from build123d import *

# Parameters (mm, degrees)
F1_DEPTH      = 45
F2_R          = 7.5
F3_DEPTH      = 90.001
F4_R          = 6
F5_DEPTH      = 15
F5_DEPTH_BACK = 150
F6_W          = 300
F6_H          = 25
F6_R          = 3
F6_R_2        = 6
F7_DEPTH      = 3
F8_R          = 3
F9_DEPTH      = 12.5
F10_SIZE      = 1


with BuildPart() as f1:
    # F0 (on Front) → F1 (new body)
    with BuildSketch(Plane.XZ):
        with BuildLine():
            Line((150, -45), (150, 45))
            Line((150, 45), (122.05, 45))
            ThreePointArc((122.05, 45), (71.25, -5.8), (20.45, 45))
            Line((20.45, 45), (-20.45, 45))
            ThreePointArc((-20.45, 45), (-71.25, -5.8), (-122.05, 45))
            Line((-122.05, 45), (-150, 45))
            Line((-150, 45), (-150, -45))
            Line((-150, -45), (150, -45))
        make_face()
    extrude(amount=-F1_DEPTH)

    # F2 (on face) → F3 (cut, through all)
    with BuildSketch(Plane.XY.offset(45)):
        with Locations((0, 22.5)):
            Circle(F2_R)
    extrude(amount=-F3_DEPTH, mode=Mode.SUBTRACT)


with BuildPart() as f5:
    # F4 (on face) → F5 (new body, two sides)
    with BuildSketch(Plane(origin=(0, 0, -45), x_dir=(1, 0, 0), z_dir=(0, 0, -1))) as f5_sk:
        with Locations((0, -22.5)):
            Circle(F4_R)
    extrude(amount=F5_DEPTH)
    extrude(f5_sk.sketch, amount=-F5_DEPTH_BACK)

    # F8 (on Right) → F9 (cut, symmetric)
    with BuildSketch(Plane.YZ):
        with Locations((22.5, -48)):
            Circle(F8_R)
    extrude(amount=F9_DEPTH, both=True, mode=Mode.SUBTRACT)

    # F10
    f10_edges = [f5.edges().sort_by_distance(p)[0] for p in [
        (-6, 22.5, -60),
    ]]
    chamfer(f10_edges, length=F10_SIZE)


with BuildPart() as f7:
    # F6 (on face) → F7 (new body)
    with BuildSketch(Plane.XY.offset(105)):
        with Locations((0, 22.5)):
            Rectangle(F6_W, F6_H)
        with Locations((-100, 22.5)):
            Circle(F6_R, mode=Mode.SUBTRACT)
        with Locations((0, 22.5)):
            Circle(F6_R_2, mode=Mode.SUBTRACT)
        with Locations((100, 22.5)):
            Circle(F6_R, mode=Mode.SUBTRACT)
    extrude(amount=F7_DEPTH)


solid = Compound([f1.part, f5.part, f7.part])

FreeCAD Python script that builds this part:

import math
import FreeCAD as App
import Part
import Sketcher
from FreeCAD import Vector


def edges_at(feature, points):
    """Names of the edges that pass closest to the given points."""
    edges = feature.Shape.Edges
    near = lambda p: min(range(len(edges)), key=lambda i: edges[i].distToShape(Part.Vertex(*p))[0])
    return sorted({f"Edge{near(p) + 1}" for p in points})

doc = App.newDocument("Part")
body = doc.addObject("PartDesign::Body", "Body")

sketch1 = doc.addObject("Sketcher::SketchObject", "Sketch")
body.addObject(sketch1)
sketch1.AttachmentSupport = (doc.XZ_Plane, [""])
sketch1.MapMode = "FlatFace"
sketch1.addGeometry([
    Part.LineSegment(Vector(150, -45, 0), Vector(150, 45, 0)),
    Part.LineSegment(Vector(150, 45, 0), Vector(122, 45, 0)),
    Part.ArcOfCircle(Part.Circle(Vector(71, 45, 0), Vector(0, 0, 1), 51), math.radians(180), math.radians(360)),
    Part.LineSegment(Vector(20, 45, 0), Vector(-20, 45, 0)),
    Part.ArcOfCircle(Part.Circle(Vector(-71, 45, 0), Vector(0, 0, 1), 51), math.radians(180), math.radians(360)),
    Part.LineSegment(Vector(-122, 45, 0), Vector(-150, 45, 0)),
    Part.LineSegment(Vector(-150, 45, 0), Vector(-150, -45, 0)),
    Part.LineSegment(Vector(-150, -45, 0), Vector(150, -45, 0)),
], False)
sketch1.addConstraint([
    Sketcher.Constraint("Coincident", 0, 2, 1, 1),
    Sketcher.Constraint("Coincident", 1, 2, 2, 2),
    Sketcher.Constraint("Coincident", 2, 1, 3, 1),
    Sketcher.Constraint("Coincident", 3, 2, 4, 2),
    Sketcher.Constraint("Coincident", 4, 1, 5, 1),
    Sketcher.Constraint("Coincident", 5, 2, 6, 1),
    Sketcher.Constraint("Coincident", 6, 2, 7, 1),
    Sketcher.Constraint("Coincident", 7, 2, 0, 1),
    Sketcher.Constraint("Vertical", 0),
    Sketcher.Constraint("Horizontal", 1),
    Sketcher.Constraint("Horizontal", 3),
    Sketcher.Constraint("Horizontal", 5),
    Sketcher.Constraint("Vertical", 6),
    Sketcher.Constraint("Horizontal", 7),
    Sketcher.Constraint("Equal", 2, 4),
    Sketcher.Constraint("Symmetric", 0, 2, 6, 2, -1, 1),
    Sketcher.Constraint("Symmetric", 2, 3, 4, 3, -2),
    Sketcher.Constraint("Horizontal", 4, 3, 0, 2),
    Sketcher.Constraint("Horizontal", 1, 2, 2, 1),
    Sketcher.Constraint("Horizontal", 3, 2, 4, 1),
    Sketcher.Constraint("Radius", 2, 50.8),
    Sketcher.Constraint("DistanceX", 7, 1, 7, 2, 300.0),
    Sketcher.Constraint("DistanceY", 0, 1, 0, 2, 90.0),
    Sketcher.Constraint("DistanceX", 3, 2, 3, 1, 40.9),
])
pad1 = doc.addObject("PartDesign::Pad", "Pad")
body.addObject(pad1)
pad1.Profile = sketch1
pad1.Length = 45
pad1.Reversed = True

sketch2 = doc.addObject("Sketcher::SketchObject", "Sketch001")
body.addObject(sketch2)
sketch2.AttachmentSupport = (doc.XY_Plane, [""])
sketch2.MapMode = "FlatFace"
sketch2.AttachmentOffset = App.Placement(Vector(0, 0, 45), App.Rotation())
sketch2.addGeometry(Part.Circle(Vector(0, 22, 0), Vector(0, 0, 1), 8), False)
sketch2.addConstraint([
    Sketcher.Constraint("PointOnObject", 0, 3, -2),
    Sketcher.Constraint("Diameter", 0, 15.0),
    Sketcher.Constraint("DistanceY", -1, 1, 0, 3, 22.5),
])
pocket1 = doc.addObject("PartDesign::Pocket", "Pocket")
body.addObject(pocket1)
pocket1.Profile = sketch2
pocket1.Type = "ThroughAll"
body2 = doc.addObject("PartDesign::Body", "Body001")

sketch3 = doc.addObject("Sketcher::SketchObject", "Sketch002")
body2.addObject(sketch3)
sketch3.AttachmentSupport = (doc.getObject("XY_Plane001"), [""])
sketch3.MapMode = "FlatFace"
sketch3.AttachmentOffset = App.Placement(Vector(0, 0, -45), App.Rotation())
sketch3.addGeometry(Part.Circle(Vector(0, 22, 0), Vector(0, 0, 1), 6), False)
sketch3.addConstraint([
    Sketcher.Constraint("PointOnObject", 0, 3, -2),
    Sketcher.Constraint("Diameter", 0, 12.0),
    Sketcher.Constraint("DistanceY", -1, 1, 0, 3, 22.5),
])
pad2 = doc.addObject("PartDesign::Pad", "Pad001")
body2.addObject(pad2)
pad2.Profile = sketch3
pad2.Type = "TwoLengths"
pad2.Length = 15
pad2.Length2 = 150
pad2.Reversed = True

sketch4 = doc.addObject("Sketcher::SketchObject", "Sketch003")
body2.addObject(sketch4)
sketch4.AttachmentSupport = (doc.getObject("YZ_Plane001"), [""])
sketch4.MapMode = "FlatFace"
sketch4.addGeometry(Part.Circle(Vector(22.5, -48, 0), Vector(0, 0, 1), 3), False)
sketch4.addConstraint([
    Sketcher.Constraint("Diameter", 0, 6.0),
    Sketcher.Constraint("DistanceY", 0, 3, -1, 1, 48.0),
    Sketcher.Constraint("DistanceX", -1, 1, 0, 3, 22.5),
])
pocket2 = doc.addObject("PartDesign::Pocket", "Pocket001")
body2.addObject(pocket2)
pocket2.Profile = sketch4
pocket2.Length = 25
pocket2.Midplane = True
doc.recompute()

chamfer = doc.addObject("PartDesign::Chamfer", "Chamfer")
body2.addObject(chamfer)
chamfer.Base = (pocket2, edges_at(pocket2, [(-6, 22.5, -60)]))
chamfer.Size = 1
body3 = doc.addObject("PartDesign::Body", "Body002")

sketch5 = doc.addObject("Sketcher::SketchObject", "Sketch004")
body3.addObject(sketch5)
sketch5.AttachmentSupport = (doc.getObject("XY_Plane002"), [""])
sketch5.MapMode = "FlatFace"
sketch5.AttachmentOffset = App.Placement(Vector(0, 0, 105), App.Rotation())
sketch5.addGeometry([
    Part.LineSegment(Vector(-150, 35, 0), Vector(-150, 10, 0)),
    Part.LineSegment(Vector(-150, 10, 0), Vector(150, 10, 0)),
    Part.LineSegment(Vector(150, 10, 0), Vector(150, 35, 0)),
    Part.LineSegment(Vector(150, 35, 0), Vector(-150, 35, 0)),
    Part.Circle(Vector(-100, 22.5, 0), Vector(0, 0, 1), 3),
    Part.Circle(Vector(0, 22.5, 0), Vector(0, 0, 1), 6),
    Part.Circle(Vector(100, 22.5, 0), Vector(0, 0, 1), 3),
], False)
sketch5.addConstraint([
    Sketcher.Constraint("Coincident", 0, 2, 1, 1),
    Sketcher.Constraint("Coincident", 1, 2, 2, 1),
    Sketcher.Constraint("Coincident", 2, 2, 3, 1),
    Sketcher.Constraint("Coincident", 3, 2, 0, 1),
    Sketcher.Constraint("Vertical", 0),
    Sketcher.Constraint("Horizontal", 1),
    Sketcher.Constraint("Vertical", 2),
    Sketcher.Constraint("Horizontal", 3),
    Sketcher.Constraint("Equal", 4, 6),
    Sketcher.Constraint("Symmetric", 4, 3, 6, 3, -2),
    Sketcher.Constraint("PointOnObject", 5, 3, -2),
    Sketcher.Constraint("Horizontal", 4, 3, 5, 3),
    Sketcher.Constraint("Diameter", 4, 6.0),
    Sketcher.Constraint("Diameter", 5, 12.0),
    Sketcher.Constraint("DistanceX", 1, 1, 1, 2, 300.0),
    Sketcher.Constraint("DistanceY", 0, 2, 0, 1, 25.0),
    Sketcher.Constraint("DistanceX", 4, 3, -1, 1, 100.0),
    Sketcher.Constraint("DistanceX", 0, 2, -1, 1, 150.0),
    Sketcher.Constraint("DistanceY", -1, 1, 0, 2, 10.0),
    Sketcher.Constraint("DistanceY", -1, 1, 4, 3, 22.5),
])
pad3 = doc.addObject("PartDesign::Pad", "Pad002")
body3.addObject(pad3)
pad3.Profile = sketch5
pad3.Length = 3

doc.recompute()
